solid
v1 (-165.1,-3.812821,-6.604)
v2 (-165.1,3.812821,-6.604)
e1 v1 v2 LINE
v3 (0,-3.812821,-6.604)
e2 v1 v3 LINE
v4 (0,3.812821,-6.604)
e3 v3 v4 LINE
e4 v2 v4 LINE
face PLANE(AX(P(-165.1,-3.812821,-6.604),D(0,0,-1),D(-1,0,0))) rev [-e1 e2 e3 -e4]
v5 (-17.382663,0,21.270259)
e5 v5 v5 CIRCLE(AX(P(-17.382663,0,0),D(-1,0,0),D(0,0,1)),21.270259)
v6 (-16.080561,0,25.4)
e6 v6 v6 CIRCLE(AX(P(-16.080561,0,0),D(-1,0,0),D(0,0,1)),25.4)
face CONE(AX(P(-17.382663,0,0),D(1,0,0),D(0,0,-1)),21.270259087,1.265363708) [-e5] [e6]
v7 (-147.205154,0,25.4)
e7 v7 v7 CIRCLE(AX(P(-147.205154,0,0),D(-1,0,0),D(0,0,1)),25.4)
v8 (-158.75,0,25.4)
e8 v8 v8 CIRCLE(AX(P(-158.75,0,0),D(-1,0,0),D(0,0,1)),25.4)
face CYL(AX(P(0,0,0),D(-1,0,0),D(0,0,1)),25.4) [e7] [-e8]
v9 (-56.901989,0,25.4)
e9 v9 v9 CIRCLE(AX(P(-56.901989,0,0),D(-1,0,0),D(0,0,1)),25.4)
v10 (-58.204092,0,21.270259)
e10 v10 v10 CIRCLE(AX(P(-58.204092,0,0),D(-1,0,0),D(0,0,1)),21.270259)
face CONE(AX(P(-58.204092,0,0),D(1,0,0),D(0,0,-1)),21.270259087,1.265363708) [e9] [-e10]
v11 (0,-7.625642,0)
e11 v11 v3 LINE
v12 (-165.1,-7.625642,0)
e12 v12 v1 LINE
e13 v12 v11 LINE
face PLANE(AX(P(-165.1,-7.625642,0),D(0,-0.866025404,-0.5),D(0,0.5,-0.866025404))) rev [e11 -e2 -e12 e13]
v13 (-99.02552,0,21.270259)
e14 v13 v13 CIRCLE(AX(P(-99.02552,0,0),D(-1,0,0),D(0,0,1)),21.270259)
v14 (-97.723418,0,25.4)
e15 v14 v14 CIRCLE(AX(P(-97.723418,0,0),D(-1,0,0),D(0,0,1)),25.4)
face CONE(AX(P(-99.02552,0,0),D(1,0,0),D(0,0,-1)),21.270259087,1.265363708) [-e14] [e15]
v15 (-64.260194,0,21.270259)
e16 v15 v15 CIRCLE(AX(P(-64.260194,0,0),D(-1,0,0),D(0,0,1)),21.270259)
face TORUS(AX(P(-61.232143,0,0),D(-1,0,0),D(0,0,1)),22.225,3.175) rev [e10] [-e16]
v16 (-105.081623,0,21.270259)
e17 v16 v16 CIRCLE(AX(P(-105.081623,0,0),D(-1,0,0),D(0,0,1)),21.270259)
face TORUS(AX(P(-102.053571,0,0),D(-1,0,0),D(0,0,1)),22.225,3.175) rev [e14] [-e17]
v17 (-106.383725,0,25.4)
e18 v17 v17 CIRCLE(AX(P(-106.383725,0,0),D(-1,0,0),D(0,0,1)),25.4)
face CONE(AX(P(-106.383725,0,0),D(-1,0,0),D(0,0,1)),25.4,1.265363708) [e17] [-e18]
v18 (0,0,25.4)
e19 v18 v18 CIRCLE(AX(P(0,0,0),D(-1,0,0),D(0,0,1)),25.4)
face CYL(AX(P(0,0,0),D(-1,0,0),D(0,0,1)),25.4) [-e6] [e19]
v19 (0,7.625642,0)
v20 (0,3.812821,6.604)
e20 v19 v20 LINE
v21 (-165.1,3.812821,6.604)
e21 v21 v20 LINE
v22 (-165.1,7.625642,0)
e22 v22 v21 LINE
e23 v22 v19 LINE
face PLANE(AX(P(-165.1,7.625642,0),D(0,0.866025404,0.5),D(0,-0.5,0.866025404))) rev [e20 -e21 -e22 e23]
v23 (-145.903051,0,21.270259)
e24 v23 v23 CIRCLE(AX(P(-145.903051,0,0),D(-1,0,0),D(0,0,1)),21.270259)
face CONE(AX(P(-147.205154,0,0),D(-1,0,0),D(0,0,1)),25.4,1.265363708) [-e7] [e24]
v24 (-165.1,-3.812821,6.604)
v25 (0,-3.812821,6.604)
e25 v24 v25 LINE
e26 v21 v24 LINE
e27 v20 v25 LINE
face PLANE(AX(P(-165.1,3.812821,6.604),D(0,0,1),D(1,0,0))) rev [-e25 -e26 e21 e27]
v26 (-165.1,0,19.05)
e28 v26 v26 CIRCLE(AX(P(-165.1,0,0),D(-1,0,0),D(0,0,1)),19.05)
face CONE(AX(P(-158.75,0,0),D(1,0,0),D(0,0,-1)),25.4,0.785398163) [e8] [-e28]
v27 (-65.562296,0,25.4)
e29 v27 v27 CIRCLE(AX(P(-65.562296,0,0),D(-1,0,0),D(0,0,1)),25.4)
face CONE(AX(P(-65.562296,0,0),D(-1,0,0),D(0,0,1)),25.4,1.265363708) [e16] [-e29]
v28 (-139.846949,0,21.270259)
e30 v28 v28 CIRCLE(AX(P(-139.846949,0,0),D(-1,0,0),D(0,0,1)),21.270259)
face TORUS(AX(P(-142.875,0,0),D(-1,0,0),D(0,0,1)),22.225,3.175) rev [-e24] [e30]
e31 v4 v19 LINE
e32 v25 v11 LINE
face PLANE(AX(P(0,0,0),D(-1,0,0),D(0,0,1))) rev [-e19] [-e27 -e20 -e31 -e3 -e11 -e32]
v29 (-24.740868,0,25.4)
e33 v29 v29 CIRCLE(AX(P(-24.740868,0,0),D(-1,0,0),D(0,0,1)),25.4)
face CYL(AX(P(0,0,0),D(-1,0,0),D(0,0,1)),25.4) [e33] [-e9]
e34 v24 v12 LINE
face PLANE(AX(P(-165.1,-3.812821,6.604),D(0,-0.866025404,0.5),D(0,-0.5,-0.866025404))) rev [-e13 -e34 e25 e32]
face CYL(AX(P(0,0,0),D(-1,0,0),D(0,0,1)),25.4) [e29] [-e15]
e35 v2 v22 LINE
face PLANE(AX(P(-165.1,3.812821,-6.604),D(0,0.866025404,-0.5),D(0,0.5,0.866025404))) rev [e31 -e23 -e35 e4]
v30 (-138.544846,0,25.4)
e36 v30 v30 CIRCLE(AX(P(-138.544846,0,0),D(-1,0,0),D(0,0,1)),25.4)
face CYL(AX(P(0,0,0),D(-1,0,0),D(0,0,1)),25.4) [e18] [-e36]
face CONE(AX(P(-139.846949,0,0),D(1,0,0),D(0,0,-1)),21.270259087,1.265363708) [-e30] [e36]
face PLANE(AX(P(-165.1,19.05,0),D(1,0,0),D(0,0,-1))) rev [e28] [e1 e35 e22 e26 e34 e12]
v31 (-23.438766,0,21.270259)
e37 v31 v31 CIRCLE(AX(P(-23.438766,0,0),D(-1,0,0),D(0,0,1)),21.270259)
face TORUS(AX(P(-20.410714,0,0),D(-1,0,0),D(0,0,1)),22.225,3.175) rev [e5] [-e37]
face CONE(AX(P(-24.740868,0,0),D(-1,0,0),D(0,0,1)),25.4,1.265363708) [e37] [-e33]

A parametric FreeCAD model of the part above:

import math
import FreeCAD as App
import Part
import Sketcher

V = App.Vector
Q = App.Units.Quantity


def add_polygon(sketch, points):
    """Adds a closed chain of lines whose ends are joined by coincident constraints."""
    first, n = sketch.GeometryCount, len(points)
    for a, b in zip(points, points[1:] + points[:1]):
        sketch.addGeometry(Part.LineSegment(App.Vector(*a, 0), App.Vector(*b, 0)), False)
    for i in range(n):
        sketch.addConstraint(Sketcher.Constraint("Coincident", first + i, 2, first + (i + 1) % n, 1))

doc = App.newDocument("Part")
body = doc.addObject("PartDesign::Body", "Body")

# Sketch on XY plane
sketch1 = body.newObject("Sketcher::SketchObject", "Sketch")
sketch1.AttachmentSupport = (doc.getObject("XY_Plane"), [""])
sketch1.MapMode = "FlatFace"
add_polygon(sketch1, [(0, 0), (0, 25), (-159, 25), (-165, 19), (-165, 0)])  # lines 0-4
sketch1.addConstraint([
    Sketcher.Constraint("Vertical", 0),
    Sketcher.Constraint("Horizontal", 1),
    Sketcher.Constraint("Vertical", 3),
    Sketcher.Constraint("Horizontal", 4),
    Sketcher.Constraint("Coincident", 4, 2, -1, 1),
    Sketcher.Constraint("DistanceY", 0, 1, 0, 2, Q("1 in")),
    Sketcher.Constraint("DistanceX", 4, 1, 4, 2, Q("6.5 in")),
    Sketcher.Constraint("Angle", 2, Q("-135 deg")),
    Sketcher.Constraint("DistanceX", 1, 2, 1, 1, Q("6.25 in")),
])
revolution = body.newObject("PartDesign::Revolution", "Revolution")
revolution.Profile = sketch1
revolution.ReferenceAxis = (sketch1, ["H_Axis"])
revolution.Angle = 360

# Sketch on XY plane
sketch2 = body.newObject("Sketcher::SketchObject", "Sketch001")
sketch2.AttachmentSupport = (doc.getObject("XY_Plane"), [""])
sketch2.MapMode = "FlatFace"
sketch2.addGeometry([
    Part.LineSegment(V(-17.4, 21.3, 0), V(-16.1, 25.4, 0)),  # 0
    Part.LineSegment(V(-16.1, 25.4, 0), V(-24.7, 25.4, 0)),  # 1
    Part.LineSegment(V(-24.7, 25.4, 0), V(-23.4, 21.3, 0)),  # 2
    Part.ArcOfCircle(Part.Circle(V(-20.4, 22.2, 0), V(0, 0, 1), 3.2), math.radians(-163), math.radians(-17)),  # 3
    Part.LineSegment(V(-58.2, 21.3, 0), V(-56.9, 25.4, 0)),  # 4
    Part.LineSegment(V(-56.9, 25.4, 0), V(-65.6, 25.4, 0)),  # 5
    Part.LineSegment(V(-65.6, 25.4, 0), V(-64.3, 21.3, 0)),  # 6
    Part.ArcOfCircle(Part.Circle(V(-61.2, 22.2, 0), V(0, 0, 1), 3.2), math.radians(-163), math.radians(-17)),  # 7
    Part.LineSegment(V(-99, 21.3, 0), V(-97.7, 25.4, 0)),  # 8
    Part.LineSegment(V(-97.7, 25.4, 0), V(-106.4, 25.4, 0)),  # 9
    Part.LineSegment(V(-106.4, 25.4, 0), V(-105.1, 21.3, 0)),  # 10
    Part.ArcOfCircle(Part.Circle(V(-102.1, 22.2, 0), V(0, 0, 1), 3.2), math.radians(-163), math.radians(-17)),  # 11
    Part.LineSegment(V(-139.8, 21.3, 0), V(-138.5, 25.4, 0)),  # 12
    Part.LineSegment(V(-138.5, 25.4, 0), V(-147.2, 25.4, 0)),  # 13
    Part.LineSegment(V(-147.2, 25.4, 0), V(-145.9, 21.3, 0)),  # 14
    Part.ArcOfCircle(Part.Circle(V(-142.9, 22.2, 0), V(0, 0, 1), 3.2), math.radians(-163), math.radians(-17)),  # 15
], False)
sketch2.addConstraint([
    Sketcher.Constraint("Coincident", 0, 2, 1, 1),
    Sketcher.Constraint("Coincident", 1, 2, 2, 1),
    Sketcher.Constraint("Tangent", 2, 2, 3, 1),
    Sketcher.Constraint("Tangent", 3, 2, 0, 1),
    Sketcher.Constraint("Coincident", 4, 2, 5, 1),
    Sketcher.Constraint("Coincident", 5, 2, 6, 1),
    Sketcher.Constraint("Tangent", 6, 2, 7, 1),
    Sketcher.Constraint("Tangent", 7, 2, 4, 1),
    Sketcher.Constraint("Coincident", 8, 2, 9, 1),
    Sketcher.Constraint("Coincident", 9, 2, 10, 1),
    Sketcher.Constraint("Tangent", 10, 2, 11, 1),
    Sketcher.Constraint("Tangent", 11, 2, 8, 1),
    Sketcher.Constraint("Coincident", 12, 2, 13, 1),
    Sketcher.Constraint("Coincident", 13, 2, 14, 1),
    Sketcher.Constraint("Tangent", 14, 2, 15, 1),
    Sketcher.Constraint("Tangent", 15, 2, 12, 1),
    Sketcher.Constraint("Horizontal", 1),
    Sketcher.Constraint("Horizontal", 5),
    Sketcher.Constraint("Horizontal", 9),
    Sketcher.Constraint("Horizontal", 13),
    Sketcher.Constraint("Equal", 3, 7),
    Sketcher.Constraint("Equal", 7, 11),
    Sketcher.Constraint("Equal", 11, 15),
    Sketcher.Constraint("Parallel", 0, 4),
    Sketcher.Constraint("Parallel", 2, 6),
    Sketcher.Constraint("Parallel", 4, 8),
    Sketcher.Constraint("Parallel", 6, 10),
    Sketcher.Constraint("Parallel", 8, 12),
    Sketcher.Constraint("Parallel", 10, 14),
    Sketcher.Constraint("Horizontal", 3, 3, 7, 3),
    Sketcher.Constraint("Horizontal", 7, 3, 11, 3),
    Sketcher.Constraint("Horizontal", 11, 3, 15, 3),
    Sketcher.Constraint("Horizontal", 2, 2, 3, 2),
    Sketcher.Constraint("Horizontal", 1, 2, 4, 2),
    Sketcher.Constraint("Horizontal", 5, 2, 8, 2),
    Sketcher.Constraint("Horizontal", 9, 2, 12, 2),
    Sketcher.Constraint("DistanceY", -1, 1, 0, 2, Q("1 in")),
    Sketcher.Constraint("Radius", 3, Q("0.125 in")),
    Sketcher.Constraint("Angle", 0, Q("72.5 deg")),
    Sketcher.Constraint("DistanceY", -1, 1, 3, 3, Q("0.875 in")),
    Sketcher.Constraint("DistanceX", 15, 3, -1, 1, Q("5.625 in")),
    Sketcher.Constraint("DistanceX", 11, 3, -1, 1, Q("102.053571 mm")),
    Sketcher.Constraint("DistanceX", 0, 2, -1, 1, Q("16.080561 mm")),
    Sketcher.Constraint("DistanceX", 4, 2, -1, 1, Q("56.901989 mm")),
])
groove = body.newObject("PartDesign::Groove", "Groove")
groove.Profile = sketch2
groove.ReferenceAxis = (sketch2, ["H_Axis"])
groove.Angle = 360

# Sketch on YZ plane
sketch3 = body.newObject("Sketcher::SketchObject", "Sketch002")
sketch3.AttachmentSupport = (doc.getObject("YZ_Plane"), [""])
sketch3.MapMode = "FlatFace"
add_polygon(sketch3, [(8, 0), (4, 7), (-4, 7), (-8, 0), (-4, -7), (4, -7)])  # lines 0-5
sketch3.addConstraint([
    Sketcher.Constraint("Horizontal", 1),
    Sketcher.Constraint("Horizontal", 4),
    Sketcher.Constraint("Symmetric", 0, 2, 3, 2, -1, 1),
    Sketcher.Constraint("Symmetric", 2, 2, 5, 2, -1, 1),
    Sketcher.Constraint("PointOnObject", 2, 2, -1),
    Sketcher.Constraint("Parallel", 2, 5),
    Sketcher.Constraint("Vertical", 1, 2, 3, 2),
    Sketcher.Constraint("Angle", 0, Q("120 deg")),
    Sketcher.Constraint("DistanceY", -1, 1, 0, 2, Q("0.26 in")),
    Sketcher.Constraint("DistanceX", 1, 2, 1, 1, Q("7.625642 mm")),
])
pocket1 = body.newObject("PartDesign::Pocket", "Pocket")
pocket1.Profile = sketch3
pocket1.Type = "ThroughAll"

doc.recompute()
